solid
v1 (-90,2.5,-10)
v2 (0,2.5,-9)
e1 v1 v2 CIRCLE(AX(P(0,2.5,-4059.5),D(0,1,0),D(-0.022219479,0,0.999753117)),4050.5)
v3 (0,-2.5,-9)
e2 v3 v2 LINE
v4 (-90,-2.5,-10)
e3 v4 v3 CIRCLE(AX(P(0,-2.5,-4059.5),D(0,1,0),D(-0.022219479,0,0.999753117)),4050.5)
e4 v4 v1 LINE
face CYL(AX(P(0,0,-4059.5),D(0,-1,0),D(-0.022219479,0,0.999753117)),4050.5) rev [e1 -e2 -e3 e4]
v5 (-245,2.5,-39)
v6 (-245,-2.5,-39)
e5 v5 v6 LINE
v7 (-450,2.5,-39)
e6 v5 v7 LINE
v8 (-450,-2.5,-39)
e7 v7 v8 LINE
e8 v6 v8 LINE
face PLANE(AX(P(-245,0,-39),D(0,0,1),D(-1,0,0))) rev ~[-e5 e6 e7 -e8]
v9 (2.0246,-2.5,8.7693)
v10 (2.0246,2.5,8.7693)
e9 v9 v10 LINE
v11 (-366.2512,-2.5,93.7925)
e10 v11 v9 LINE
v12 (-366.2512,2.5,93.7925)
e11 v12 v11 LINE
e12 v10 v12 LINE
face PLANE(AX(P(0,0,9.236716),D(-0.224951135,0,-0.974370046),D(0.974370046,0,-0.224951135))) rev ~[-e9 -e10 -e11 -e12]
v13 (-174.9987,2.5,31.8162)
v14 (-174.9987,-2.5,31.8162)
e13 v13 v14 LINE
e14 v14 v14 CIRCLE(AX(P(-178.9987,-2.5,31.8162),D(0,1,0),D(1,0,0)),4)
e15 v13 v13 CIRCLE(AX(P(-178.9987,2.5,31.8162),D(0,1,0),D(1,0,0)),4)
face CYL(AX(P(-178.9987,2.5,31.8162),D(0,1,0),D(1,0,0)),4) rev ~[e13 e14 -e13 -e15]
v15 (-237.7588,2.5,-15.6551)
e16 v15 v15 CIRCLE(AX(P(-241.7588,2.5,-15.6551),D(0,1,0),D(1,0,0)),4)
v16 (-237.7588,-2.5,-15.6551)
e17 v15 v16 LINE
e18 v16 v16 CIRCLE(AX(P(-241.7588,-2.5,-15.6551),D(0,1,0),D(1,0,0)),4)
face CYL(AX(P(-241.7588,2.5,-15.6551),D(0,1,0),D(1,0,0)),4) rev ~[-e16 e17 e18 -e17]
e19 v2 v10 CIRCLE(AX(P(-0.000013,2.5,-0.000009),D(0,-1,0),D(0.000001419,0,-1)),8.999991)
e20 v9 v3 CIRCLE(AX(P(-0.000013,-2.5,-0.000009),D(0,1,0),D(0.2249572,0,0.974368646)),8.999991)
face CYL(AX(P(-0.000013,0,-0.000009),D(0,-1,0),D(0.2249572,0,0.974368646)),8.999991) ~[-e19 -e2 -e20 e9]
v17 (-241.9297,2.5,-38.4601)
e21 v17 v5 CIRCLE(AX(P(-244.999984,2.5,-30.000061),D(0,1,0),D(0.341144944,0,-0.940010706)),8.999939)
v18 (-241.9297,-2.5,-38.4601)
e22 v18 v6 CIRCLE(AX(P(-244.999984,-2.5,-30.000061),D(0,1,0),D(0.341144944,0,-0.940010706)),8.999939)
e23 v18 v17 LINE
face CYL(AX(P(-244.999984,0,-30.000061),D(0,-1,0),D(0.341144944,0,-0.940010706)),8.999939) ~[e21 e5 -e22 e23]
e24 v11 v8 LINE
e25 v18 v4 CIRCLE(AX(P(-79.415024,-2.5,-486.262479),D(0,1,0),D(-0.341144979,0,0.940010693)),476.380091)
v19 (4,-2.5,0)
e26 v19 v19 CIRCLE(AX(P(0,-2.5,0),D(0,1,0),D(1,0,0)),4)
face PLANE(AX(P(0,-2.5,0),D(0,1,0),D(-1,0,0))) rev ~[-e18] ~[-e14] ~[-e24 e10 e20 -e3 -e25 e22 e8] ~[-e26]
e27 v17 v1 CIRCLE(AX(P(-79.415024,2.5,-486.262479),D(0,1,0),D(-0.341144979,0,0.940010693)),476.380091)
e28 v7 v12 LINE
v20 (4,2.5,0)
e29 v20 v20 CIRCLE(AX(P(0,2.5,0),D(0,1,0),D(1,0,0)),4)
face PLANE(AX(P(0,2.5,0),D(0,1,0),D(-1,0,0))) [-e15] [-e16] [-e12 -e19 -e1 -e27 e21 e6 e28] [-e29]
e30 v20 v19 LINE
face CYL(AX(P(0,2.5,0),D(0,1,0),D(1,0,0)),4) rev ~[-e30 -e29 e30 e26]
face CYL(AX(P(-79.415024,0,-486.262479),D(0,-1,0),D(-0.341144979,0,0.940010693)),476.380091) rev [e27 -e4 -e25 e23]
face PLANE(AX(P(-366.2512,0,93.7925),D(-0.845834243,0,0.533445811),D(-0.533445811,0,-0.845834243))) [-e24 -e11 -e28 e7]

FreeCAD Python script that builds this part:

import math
import FreeCAD as App
import Part
import Sketcher
from FreeCAD import Vector
Q = App.Units.Quantity

doc = App.newDocument("Part")
body = doc.addObject("PartDesign::Body", "Body")

sketch1 = body.newObject("Sketcher::SketchObject", "Sketch")
sketch1.AttachmentSupport = (doc.getObject("XZ_Plane"), [""])
sketch1.MapMode = "FlatFace"
sketch1.addGeometry(Part.ArcOfCircle(Part.Circle(Vector(0, 0, 0), Vector(0, 0, 1), 9), math.radians(-90), math.radians(77)), False)
sketch1.addGeometry(Part.ArcOfCircle(Part.Circle(Vector(0, -4059.5, 0), Vector(0, 0, 1), 4050.5), math.radians(90), math.radians(91.27)), False)
sketch1.addGeometry(Part.ArcOfCircle(Part.Circle(Vector(-79.4, -486.3, 0), Vector(0, 0, 1), 476.4), math.radians(91.27), math.radians(109.95)), False)
sketch1.addGeometry(Part.ArcOfCircle(Part.Circle(Vector(-245, -30, 0), Vector(0, 0, 1), 9), math.radians(-90), math.radians(-70.05)), False)
sketch1.addGeometry(Part.LineSegment(Vector(-245, -39, 0), Vector(-450, -39, 0)), False)
sketch1.addGeometry(Part.LineSegment(Vector(-450, -39, 0), Vector(-366.3, 93.8, 0)), False)
sketch1.addGeometry(Part.LineSegment(Vector(-366.3, 93.8, 0), Vector(2, 8.8, 0)), False)
sketch1.addConstraint(Sketcher.Constraint("Tangent", 0, 1, 1, 1))
sketch1.addConstraint(Sketcher.Constraint("Tangent", 1, 2, 2, 1))
sketch1.addConstraint(Sketcher.Constraint("Tangent", 2, 2, 3, 2))
sketch1.addConstraint(Sketcher.Constraint("Tangent", 3, 1, 4, 1))
sketch1.addConstraint(Sketcher.Constraint("Coincident", 4, 2, 5, 1))
sketch1.addConstraint(Sketcher.Constraint("Coincident", 5, 2, 6, 1))
sketch1.addConstraint(Sketcher.Constraint("Tangent", 6, 2, 0, 2))
sketch1.addConstraint(Sketcher.Constraint("Horizontal", 4))
sketch1.addConstraint(Sketcher.Constraint("Coincident", 0, 3, -1, 1))
sketch1.addConstraint(Sketcher.Constraint("Equal", 0, 3))
sketch1.addConstraint(Sketcher.Constraint("PointOnObject", 1, 3, -2))
sketch1.addConstraint(Sketcher.Constraint("Radius", 0, Q("9 mm")))
sketch1.addConstraint(Sketcher.Constraint("Angle", 6, Q("-13 deg")))
sketch1.addConstraint(Sketcher.Constraint("DistanceX", 3, 3, -1, 1, Q("245 mm")))
sketch1.addConstraint(Sketcher.Constraint("DistanceY", 3, 3, -1, 1, Q("30 mm")))
sketch1.addConstraint(Sketcher.Constraint("Radius", 1, Q("4050.5 mm")))
sketch1.addConstraint(Sketcher.Constraint("DistanceX", 4, 2, 4, 1, Q("205 mm")))
sketch1.addConstraint(Sketcher.Constraint("Radius", 2, Q("476.3798 mm")))
sketch1.addConstraint(Sketcher.Constraint("Distance", 5, Q("156.996 mm")))
pad1 = body.newObject("PartDesign::Pad", "Pad")
pad1.Profile = sketch1
pad1.Length = 5
pad1.Midplane = True

sketch2 = body.newObject("Sketcher::SketchObject", "Sketch001")
sketch2.AttachmentSupport = (doc.getObject("XZ_Plane"), [""])
sketch2.MapMode = "FlatFace"
sketch2.AttachmentOffset = App.Placement(Vector(0, 0, -2.5), App.Rotation())
sketch2.addGeometry(Part.Circle(Vector(0, 0, 0), Vector(0, 0, 1), 4), False)
sketch2.addGeometry(Part.Circle(Vector(-241.8, -15.7, 0), Vector(0, 0, 1), 4), False)
sketch2.addGeometry(Part.Circle(Vector(-179, 31.8, 0), Vector(0, 0, 1), 4), False)
sketch2.addConstraint(Sketcher.Constraint("Coincident", 0, 3, -1, 1))
sketch2.addConstraint(Sketcher.Constraint("Equal", 0, 1))
sketch2.addConstraint(Sketcher.Constraint("Equal", 1, 2))
sketch2.addConstraint(Sketcher.Constraint("Diameter", 0, Q("8 mm")))
sketch2.addConstraint(Sketcher.Constraint("DistanceX", 1, 3, 2, 3, Q("62.76 mm")))
sketch2.addConstraint(Sketcher.Constraint("DistanceY", 1, 3, -1, 1, Q("15.655 mm")))
sketch2.addConstraint(Sketcher.Constraint("DistanceX", 1, 3, -1, 1, Q("241.7588 mm")))
sketch2.addConstraint(Sketcher.Constraint("DistanceY", -1, 1, 2, 3, Q("31.8162 mm")))
pocket1 = body.newObject("PartDesign::Pocket", "Pocket")
pocket1.Profile = sketch2
pocket1.Type = "ThroughAll"
pocket1.Reversed = True

doc.recompute()
